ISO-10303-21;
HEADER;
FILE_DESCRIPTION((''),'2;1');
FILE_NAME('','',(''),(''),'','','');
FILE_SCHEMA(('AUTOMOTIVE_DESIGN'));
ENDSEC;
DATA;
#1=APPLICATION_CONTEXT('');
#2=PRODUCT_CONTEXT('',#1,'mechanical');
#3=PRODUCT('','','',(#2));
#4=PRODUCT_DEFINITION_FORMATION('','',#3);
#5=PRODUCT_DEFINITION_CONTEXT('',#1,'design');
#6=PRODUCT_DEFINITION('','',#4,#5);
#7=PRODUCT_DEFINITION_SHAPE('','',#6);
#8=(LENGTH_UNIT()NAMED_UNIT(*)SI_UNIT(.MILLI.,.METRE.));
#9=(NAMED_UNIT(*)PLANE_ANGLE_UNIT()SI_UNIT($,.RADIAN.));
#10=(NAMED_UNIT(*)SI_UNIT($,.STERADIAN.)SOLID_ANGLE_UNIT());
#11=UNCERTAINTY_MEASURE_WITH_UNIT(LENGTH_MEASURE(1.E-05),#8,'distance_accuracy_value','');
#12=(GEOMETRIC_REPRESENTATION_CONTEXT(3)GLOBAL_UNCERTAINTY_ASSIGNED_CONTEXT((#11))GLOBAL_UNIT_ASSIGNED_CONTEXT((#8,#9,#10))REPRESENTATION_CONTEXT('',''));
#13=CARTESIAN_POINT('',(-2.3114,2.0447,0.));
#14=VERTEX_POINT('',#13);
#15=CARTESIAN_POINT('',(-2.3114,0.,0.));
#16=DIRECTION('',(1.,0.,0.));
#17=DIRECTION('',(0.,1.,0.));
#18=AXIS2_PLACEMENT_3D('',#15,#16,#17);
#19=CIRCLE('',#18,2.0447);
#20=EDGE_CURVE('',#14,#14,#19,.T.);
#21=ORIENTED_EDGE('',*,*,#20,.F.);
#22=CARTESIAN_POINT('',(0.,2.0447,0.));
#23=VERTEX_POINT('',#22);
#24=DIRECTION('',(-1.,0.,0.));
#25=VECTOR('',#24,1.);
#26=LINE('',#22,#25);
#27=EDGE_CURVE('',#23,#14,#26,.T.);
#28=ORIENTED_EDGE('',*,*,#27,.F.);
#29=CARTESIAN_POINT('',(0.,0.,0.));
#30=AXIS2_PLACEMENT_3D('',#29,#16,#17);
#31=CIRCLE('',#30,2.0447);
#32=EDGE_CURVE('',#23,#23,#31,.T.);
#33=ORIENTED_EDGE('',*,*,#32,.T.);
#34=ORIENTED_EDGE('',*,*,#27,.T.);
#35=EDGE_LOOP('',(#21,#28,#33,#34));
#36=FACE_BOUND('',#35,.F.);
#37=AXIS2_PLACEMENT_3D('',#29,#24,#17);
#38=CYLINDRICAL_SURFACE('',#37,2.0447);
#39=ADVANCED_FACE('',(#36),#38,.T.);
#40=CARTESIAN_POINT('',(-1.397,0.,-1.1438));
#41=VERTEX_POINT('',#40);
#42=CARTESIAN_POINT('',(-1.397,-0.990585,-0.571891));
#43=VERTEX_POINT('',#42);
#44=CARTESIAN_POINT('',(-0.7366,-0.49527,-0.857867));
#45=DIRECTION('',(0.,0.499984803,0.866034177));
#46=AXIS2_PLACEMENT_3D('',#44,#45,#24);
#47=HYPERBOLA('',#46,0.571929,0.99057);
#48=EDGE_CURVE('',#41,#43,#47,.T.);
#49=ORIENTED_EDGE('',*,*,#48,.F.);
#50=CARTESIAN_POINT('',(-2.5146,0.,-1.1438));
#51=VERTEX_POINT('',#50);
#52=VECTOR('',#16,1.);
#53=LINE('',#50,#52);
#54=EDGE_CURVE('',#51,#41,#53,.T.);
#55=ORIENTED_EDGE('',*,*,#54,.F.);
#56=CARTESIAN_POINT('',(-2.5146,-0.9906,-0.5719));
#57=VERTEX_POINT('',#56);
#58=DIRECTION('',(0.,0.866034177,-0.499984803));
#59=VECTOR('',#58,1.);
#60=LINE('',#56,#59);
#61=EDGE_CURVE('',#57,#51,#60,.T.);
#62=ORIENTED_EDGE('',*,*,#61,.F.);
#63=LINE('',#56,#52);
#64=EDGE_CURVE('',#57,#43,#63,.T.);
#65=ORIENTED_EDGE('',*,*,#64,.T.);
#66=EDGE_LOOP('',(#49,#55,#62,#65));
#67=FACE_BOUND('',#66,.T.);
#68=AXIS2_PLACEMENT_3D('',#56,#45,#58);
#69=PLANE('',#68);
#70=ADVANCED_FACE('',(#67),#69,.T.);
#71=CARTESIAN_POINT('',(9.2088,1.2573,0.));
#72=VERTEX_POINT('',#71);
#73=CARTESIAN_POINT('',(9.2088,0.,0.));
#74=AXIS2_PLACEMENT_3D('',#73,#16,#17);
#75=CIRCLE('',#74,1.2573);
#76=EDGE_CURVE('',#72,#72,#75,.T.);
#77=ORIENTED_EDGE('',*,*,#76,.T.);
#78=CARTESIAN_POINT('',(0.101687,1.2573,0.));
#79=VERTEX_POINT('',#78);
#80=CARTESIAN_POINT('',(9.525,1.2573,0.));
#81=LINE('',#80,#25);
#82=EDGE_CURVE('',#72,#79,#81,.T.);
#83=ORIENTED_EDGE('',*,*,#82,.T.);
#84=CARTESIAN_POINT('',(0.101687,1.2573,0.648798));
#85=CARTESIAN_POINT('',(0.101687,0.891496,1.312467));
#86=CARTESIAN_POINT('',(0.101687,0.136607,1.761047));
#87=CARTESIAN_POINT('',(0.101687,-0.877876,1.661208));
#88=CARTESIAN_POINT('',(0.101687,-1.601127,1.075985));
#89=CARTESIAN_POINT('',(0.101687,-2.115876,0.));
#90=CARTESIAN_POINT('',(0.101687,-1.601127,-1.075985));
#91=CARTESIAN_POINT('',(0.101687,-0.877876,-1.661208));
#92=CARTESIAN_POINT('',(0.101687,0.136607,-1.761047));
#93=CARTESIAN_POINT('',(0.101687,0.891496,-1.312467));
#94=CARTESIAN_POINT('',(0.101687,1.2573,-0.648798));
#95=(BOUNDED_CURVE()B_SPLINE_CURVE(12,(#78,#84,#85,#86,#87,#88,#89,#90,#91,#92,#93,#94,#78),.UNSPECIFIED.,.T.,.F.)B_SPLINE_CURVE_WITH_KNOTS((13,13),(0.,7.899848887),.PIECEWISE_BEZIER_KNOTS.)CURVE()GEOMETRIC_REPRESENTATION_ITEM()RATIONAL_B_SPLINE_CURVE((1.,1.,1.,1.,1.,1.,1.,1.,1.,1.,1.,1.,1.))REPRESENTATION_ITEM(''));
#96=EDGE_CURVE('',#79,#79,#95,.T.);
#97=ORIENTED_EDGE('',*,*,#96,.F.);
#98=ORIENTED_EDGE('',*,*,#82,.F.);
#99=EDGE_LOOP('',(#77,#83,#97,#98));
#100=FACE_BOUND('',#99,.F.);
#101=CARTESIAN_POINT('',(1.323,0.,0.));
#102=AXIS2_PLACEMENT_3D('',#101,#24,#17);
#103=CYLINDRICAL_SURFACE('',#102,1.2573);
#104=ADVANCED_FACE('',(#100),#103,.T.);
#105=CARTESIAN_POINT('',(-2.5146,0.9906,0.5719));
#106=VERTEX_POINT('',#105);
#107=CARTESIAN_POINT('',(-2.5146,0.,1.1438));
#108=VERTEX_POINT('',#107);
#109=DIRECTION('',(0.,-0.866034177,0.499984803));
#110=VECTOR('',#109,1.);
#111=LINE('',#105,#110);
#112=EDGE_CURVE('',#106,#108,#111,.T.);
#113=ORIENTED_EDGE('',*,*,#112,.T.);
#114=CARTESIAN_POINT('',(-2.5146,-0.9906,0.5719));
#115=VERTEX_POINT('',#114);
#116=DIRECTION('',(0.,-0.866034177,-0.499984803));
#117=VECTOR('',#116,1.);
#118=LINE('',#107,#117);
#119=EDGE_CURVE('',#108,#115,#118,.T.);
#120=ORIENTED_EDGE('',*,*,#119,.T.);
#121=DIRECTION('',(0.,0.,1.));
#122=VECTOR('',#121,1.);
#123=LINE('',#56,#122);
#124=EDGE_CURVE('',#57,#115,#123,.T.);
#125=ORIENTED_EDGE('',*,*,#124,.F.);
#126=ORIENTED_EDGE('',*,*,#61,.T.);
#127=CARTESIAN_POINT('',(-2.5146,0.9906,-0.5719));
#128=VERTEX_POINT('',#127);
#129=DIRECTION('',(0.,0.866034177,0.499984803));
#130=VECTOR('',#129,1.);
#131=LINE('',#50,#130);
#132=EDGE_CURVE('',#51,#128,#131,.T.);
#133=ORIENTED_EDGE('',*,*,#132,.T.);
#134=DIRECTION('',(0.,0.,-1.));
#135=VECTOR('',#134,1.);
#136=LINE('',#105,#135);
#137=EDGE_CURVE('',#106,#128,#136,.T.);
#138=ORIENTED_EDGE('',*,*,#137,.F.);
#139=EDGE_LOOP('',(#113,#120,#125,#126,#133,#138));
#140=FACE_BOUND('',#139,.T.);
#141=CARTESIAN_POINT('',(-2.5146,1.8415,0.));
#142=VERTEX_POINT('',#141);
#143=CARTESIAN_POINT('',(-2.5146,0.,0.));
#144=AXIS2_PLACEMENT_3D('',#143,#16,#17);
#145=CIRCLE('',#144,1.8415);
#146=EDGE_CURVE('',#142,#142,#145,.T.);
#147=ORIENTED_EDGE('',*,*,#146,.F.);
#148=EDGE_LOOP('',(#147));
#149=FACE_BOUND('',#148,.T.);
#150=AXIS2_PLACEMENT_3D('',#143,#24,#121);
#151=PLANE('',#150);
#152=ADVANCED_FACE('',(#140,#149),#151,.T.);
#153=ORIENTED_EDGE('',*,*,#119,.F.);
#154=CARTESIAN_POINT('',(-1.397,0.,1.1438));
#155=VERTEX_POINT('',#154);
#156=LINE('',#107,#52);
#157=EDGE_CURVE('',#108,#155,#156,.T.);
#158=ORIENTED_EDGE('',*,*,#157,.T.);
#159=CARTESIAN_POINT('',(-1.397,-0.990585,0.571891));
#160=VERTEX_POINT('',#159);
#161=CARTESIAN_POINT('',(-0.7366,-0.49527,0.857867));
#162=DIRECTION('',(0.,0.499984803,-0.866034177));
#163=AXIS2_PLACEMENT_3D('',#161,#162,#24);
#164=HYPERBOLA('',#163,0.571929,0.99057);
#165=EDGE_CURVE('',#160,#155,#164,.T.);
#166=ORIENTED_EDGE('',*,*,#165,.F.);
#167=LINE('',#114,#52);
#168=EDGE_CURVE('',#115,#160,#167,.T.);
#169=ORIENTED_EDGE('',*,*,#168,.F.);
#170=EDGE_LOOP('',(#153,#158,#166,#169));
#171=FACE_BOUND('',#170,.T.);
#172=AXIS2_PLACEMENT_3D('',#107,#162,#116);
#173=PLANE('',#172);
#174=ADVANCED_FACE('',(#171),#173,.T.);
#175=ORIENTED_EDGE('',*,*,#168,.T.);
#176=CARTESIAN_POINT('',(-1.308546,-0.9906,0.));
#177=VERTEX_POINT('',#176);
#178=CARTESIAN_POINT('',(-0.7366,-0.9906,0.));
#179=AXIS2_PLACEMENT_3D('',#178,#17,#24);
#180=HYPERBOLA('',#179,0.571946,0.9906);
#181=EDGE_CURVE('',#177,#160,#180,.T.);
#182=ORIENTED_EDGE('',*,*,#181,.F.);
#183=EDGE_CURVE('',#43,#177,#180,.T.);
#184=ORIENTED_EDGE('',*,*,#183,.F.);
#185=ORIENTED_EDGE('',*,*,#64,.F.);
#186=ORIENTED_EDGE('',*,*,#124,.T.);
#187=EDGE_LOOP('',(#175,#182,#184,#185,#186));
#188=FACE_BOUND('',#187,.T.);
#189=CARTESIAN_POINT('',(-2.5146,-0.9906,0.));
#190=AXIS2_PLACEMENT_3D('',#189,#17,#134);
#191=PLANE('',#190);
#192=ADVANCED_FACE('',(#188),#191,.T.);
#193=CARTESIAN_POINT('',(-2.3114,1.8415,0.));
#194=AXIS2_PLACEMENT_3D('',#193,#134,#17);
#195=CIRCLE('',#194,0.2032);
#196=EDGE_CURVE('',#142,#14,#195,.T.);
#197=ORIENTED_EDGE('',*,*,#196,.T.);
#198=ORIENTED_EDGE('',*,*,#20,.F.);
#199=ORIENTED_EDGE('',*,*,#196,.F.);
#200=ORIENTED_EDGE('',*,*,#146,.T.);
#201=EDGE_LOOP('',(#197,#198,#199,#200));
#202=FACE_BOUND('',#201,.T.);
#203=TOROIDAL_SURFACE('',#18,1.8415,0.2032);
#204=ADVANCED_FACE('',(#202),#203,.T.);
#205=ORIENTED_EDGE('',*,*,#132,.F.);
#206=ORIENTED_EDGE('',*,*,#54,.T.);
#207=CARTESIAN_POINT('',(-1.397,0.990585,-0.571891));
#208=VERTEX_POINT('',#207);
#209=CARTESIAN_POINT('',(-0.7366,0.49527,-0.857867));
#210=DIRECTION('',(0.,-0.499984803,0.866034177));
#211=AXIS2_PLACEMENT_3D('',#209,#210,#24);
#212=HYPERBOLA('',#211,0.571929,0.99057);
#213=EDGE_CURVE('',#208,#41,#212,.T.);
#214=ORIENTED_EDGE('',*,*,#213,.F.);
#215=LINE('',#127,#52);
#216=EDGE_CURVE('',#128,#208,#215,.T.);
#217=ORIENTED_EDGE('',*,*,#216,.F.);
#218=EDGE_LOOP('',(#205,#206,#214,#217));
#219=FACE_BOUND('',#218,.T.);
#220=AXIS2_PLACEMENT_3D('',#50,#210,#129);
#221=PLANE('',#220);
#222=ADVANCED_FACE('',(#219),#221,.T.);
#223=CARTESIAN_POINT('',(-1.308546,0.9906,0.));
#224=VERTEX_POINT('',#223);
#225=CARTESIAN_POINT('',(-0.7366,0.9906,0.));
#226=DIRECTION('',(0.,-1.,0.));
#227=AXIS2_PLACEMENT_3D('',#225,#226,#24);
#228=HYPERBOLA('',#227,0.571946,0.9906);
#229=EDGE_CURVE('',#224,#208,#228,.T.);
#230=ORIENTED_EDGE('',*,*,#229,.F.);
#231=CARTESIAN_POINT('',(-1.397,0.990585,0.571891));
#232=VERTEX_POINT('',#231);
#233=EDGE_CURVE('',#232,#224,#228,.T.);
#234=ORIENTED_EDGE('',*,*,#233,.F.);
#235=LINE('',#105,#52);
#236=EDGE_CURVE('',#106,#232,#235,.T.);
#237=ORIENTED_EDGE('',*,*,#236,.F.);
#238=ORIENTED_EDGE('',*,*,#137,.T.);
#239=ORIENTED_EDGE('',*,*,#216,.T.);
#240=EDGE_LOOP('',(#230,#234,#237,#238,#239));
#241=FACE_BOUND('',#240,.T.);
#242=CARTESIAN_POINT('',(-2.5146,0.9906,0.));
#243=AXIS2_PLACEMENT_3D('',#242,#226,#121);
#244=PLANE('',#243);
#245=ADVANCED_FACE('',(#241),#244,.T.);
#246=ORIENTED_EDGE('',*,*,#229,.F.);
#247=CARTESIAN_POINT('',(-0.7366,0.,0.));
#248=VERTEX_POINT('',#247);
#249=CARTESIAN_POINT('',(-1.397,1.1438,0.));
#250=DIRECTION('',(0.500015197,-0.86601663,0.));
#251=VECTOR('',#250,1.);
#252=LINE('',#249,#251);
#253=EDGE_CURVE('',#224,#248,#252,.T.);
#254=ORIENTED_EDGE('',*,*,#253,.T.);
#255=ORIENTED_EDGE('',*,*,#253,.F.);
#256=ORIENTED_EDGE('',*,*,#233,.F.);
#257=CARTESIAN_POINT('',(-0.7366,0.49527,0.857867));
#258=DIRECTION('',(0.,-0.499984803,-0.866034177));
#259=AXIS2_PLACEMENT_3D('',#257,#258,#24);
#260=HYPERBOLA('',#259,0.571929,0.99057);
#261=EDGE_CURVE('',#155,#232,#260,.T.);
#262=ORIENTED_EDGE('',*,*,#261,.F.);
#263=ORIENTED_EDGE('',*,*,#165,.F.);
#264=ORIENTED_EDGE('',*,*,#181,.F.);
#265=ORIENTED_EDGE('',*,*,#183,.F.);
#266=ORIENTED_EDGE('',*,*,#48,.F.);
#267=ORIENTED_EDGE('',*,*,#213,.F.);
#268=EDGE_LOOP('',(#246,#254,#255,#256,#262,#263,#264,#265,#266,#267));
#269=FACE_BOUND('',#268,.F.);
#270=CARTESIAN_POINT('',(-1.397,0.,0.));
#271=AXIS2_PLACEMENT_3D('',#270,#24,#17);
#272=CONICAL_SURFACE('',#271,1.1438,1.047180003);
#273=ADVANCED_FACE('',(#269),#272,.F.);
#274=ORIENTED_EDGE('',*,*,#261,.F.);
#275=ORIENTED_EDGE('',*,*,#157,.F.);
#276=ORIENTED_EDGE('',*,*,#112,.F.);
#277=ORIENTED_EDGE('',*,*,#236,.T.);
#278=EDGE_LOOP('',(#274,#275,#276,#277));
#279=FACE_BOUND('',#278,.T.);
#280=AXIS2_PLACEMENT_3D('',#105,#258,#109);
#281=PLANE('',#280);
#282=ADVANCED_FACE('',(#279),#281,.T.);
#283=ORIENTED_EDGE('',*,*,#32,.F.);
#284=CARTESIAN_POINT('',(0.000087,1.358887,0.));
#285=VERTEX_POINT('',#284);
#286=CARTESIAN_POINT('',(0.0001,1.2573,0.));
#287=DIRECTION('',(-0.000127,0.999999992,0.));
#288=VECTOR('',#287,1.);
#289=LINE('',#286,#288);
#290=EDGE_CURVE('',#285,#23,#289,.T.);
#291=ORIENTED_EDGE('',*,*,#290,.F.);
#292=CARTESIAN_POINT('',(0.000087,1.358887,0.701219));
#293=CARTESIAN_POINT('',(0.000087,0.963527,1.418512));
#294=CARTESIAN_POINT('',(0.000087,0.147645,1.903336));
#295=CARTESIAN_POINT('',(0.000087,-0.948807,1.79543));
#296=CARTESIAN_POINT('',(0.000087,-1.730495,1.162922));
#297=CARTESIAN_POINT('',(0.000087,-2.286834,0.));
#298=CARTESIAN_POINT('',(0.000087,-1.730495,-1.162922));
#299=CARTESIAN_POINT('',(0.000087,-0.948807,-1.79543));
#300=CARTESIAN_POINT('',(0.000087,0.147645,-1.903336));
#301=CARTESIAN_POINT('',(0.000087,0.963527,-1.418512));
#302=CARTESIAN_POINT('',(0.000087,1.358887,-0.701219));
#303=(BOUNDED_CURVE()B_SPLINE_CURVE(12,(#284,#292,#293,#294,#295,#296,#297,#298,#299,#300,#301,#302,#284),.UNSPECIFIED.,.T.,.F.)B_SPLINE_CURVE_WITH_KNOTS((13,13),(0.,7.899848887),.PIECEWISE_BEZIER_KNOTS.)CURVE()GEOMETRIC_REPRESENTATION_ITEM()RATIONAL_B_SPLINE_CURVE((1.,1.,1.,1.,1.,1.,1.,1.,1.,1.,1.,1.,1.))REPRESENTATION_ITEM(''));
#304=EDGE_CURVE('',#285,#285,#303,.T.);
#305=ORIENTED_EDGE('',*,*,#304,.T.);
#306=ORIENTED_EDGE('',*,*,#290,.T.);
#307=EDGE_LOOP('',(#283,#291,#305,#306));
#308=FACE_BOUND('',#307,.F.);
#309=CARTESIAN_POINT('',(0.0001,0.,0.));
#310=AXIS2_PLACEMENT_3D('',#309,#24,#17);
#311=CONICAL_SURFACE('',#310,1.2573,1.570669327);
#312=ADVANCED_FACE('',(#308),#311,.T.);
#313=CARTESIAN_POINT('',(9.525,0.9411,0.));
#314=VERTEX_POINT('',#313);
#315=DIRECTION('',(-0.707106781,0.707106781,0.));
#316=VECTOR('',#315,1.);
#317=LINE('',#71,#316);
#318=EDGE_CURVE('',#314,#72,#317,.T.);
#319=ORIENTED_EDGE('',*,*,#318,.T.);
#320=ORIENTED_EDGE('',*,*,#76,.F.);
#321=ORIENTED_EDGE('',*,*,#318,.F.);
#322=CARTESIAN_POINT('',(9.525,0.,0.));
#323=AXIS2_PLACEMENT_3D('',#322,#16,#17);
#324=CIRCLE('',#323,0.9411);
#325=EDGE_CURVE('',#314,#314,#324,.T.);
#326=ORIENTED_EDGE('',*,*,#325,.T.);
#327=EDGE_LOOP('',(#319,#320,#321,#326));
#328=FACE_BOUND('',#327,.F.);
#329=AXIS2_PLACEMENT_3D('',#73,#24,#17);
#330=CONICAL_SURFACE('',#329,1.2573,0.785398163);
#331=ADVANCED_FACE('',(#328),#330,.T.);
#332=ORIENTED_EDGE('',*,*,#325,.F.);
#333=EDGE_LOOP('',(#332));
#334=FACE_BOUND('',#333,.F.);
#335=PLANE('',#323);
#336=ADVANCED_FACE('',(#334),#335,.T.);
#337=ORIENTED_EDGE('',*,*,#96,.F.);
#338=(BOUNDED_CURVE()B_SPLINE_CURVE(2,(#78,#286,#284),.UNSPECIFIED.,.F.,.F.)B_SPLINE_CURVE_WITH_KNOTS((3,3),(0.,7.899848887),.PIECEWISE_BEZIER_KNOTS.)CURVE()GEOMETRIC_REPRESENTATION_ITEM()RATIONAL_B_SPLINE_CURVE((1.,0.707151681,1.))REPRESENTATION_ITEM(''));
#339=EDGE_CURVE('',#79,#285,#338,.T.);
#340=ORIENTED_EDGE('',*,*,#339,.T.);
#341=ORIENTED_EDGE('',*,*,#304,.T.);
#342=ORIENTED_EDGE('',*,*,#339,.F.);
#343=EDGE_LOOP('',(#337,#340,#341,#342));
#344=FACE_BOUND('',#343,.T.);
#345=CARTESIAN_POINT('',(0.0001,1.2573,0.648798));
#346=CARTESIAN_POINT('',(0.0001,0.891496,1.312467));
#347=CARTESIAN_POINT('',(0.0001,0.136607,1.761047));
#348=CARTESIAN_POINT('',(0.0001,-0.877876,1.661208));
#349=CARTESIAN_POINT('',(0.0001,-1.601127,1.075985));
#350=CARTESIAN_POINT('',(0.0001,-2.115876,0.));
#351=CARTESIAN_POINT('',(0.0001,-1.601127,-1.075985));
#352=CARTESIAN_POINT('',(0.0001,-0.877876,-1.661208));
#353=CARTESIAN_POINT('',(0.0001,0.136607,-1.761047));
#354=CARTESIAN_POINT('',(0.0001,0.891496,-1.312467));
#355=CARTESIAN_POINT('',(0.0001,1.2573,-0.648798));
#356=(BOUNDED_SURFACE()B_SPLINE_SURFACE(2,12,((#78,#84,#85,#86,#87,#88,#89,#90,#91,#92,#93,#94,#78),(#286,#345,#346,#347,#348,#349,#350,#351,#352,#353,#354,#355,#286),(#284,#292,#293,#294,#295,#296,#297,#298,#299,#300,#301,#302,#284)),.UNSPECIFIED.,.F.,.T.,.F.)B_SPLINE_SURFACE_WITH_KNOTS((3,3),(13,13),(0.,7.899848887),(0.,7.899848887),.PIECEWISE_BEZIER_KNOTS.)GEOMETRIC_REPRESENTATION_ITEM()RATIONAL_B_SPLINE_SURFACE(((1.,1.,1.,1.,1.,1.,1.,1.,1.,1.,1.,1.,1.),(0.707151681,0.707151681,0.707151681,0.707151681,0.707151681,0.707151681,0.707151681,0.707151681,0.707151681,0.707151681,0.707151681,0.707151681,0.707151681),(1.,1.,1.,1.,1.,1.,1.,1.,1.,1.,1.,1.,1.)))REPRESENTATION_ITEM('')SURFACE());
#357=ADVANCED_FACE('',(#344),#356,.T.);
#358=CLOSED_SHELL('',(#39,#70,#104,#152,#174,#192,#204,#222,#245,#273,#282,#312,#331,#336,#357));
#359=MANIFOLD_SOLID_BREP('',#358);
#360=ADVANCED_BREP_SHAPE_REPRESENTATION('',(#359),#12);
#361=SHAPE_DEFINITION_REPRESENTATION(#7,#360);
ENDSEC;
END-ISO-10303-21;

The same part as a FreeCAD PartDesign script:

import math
import FreeCAD as App
import Part
import Sketcher

V = App.Vector
Q = App.Units.Quantity


def edges_at(feature, points):
    """Names of the edges that pass closest to the given points."""
    edges = feature.Shape.Edges
    near = lambda p: min(range(len(edges)), key=lambda i: edges[i].distToShape(Part.Vertex(*p))[0])
    return sorted({f"Edge{near(p) + 1}" for p in points})


def add_polygon(sketch, points):
    """Adds a closed chain of lines whose ends are joined by coincident constraints."""
    first, n = sketch.GeometryCount, len(points)
    for a, b in zip(points, points[1:] + points[:1]):
        sketch.addGeometry(Part.LineSegment(App.Vector(*a, 0), App.Vector(*b, 0)), False)
    for i in range(n):
        sketch.addConstraint(Sketcher.Constraint("Coincident", first + i, 2, first + (i + 1) % n, 1))

doc = App.newDocument("Part")
body = doc.addObject("PartDesign::Body", "Body")

# Sketch on XY plane
sketch1 = body.newObject("Sketcher::SketchObject", "Sketch")
sketch1.AttachmentSupport = (doc.getObject("XY_Plane"), [""])
sketch1.MapMode = "FlatFace"
add_polygon(sketch1, [(-1.4, 1.1), (-0.7, 0), (9.5, 0), (9.5, 1.3), (0, 1.3), (0, 2), (-2.5, 2), (-2.5, 1.1)])  # lines 0-7
sketch1.addConstraint(Sketcher.Constraint("Horizontal", 1))
sketch1.addConstraint(Sketcher.Constraint("Vertical", 2))
sketch1.addConstraint(Sketcher.Constraint("Horizontal", 3))
sketch1.addConstraint(Sketcher.Constraint("Vertical", 4))
sketch1.addConstraint(Sketcher.Constraint("Horizontal", 5))
sketch1.addConstraint(Sketcher.Constraint("Vertical", 6))
sketch1.addConstraint(Sketcher.Constraint("Horizontal", 7))
sketch1.addConstraint(Sketcher.Constraint("PointOnObject", 0, 2, -1))
sketch1.addConstraint(Sketcher.Constraint("PointOnObject", 3, 2, -2))
sketch1.addConstraint(Sketcher.Constraint("DistanceX", 3, 2, 3, 1, Q("0.375 in")))
sketch1.addConstraint(Sketcher.Constraint("DistanceX", 5, 2, 5, 1, Q("0.099 in")))
sketch1.addConstraint(Sketcher.Constraint("DistanceX", 7, 1, 7, 2, Q("0.044 in")))
sketch1.addConstraint(Sketcher.Constraint("Angle", 0, Q("-59.999 deg")))
sketch1.addConstraint(Sketcher.Constraint("DistanceX", 1, 1, 1, 2, Q("0.404 in")))
sketch1.addConstraint(Sketcher.Constraint("DistanceY", 4, 1, 4, 2, Q("0.031 in")))
sketch1.addConstraint(Sketcher.Constraint("DistanceY", 2, 1, 2, 2, Q("0.0495 in")))
revolution = body.newObject("PartDesign::Revolution", "Revolution")
revolution.Profile = sketch1
revolution.ReferenceAxis = (sketch1, ["H_Axis"])
revolution.Angle = 360

# Sketch on YZ plane
sketch2 = body.newObject("Sketcher::SketchObject", "Sketch001")
sketch2.AttachmentSupport = (doc.getObject("YZ_Plane"), [""])
sketch2.MapMode = "FlatFace"
sketch2.AttachmentOffset = App.Placement(V(0, 0, -0.099 * 25.4), App.Rotation())
sketch2.addGeometry(Part.LineSegment(V(1, 0.6, 0), V(0, 1.1, 0)), False)
sketch2.addGeometry(Part.ArcOfCircle(Part.Circle(V(0, 0, 0), V(0, 0, 1), 1.1), math.radians(30), math.radians(90)), False)
sketch2.addGeometry(Part.ArcOfCircle(Part.Circle(V(0, 0, 0), V(0, 0, 1), 1.1), math.radians(90), math.radians(150)), False)
sketch2.addGeometry(Part.LineSegment(V(0, 1.1, 0), V(-1, 0.6, 0)), False)
sketch2.addGeometry(Part.ArcOfCircle(Part.Circle(V(0, 0, 0), V(0, 0, 1), 1.1), math.radians(-30), math.radians(30)), False)
sketch2.addGeometry(Part.LineSegment(V(1, 0.6, 0), V(1, -0.6, 0)), False)
sketch2.addGeometry(Part.LineSegment(V(-1, 0.6, 0), V(-1, -0.6, 0)), False)
sketch2.addGeometry(Part.ArcOfCircle(Part.Circle(V(0, 0, 0), V(0, 0, 1), 1.1), math.radians(150), math.radians(210)), False)
sketch2.addGeometry(Part.LineSegment(V(-1, -0.6, 0), V(0, -1.1, 0)), False)
sketch2.addGeometry(Part.ArcOfCircle(Part.Circle(V(0, 0, 0), V(0, 0, 1), 1.1), math.radians(-150), math.radians(-90)), False)
sketch2.addGeometry(Part.ArcOfCircle(Part.Circle(V(0, 0, 0), V(0, 0, 1), 1.1), math.radians(-90), math.radians(-30)), False)
sketch2.addGeometry(Part.LineSegment(V(0, -1.1, 0), V(1, -0.6, 0)), False)
sketch2.addConstraint(Sketcher.Constraint("Coincident", 0, 1, 1, 1))
sketch2.addConstraint(Sketcher.Constraint("Coincident", 1, 2, 0, 2))
sketch2.addConstraint(Sketcher.Constraint("Coincident", 2, 1, 3, 1))
sketch2.addConstraint(Sketcher.Constraint("Coincident", 3, 2, 2, 2))
sketch2.addConstraint(Sketcher.Constraint("Coincident", 4, 1, 5, 2))
sketch2.addConstraint(Sketcher.Constraint("Coincident", 5, 1, 4, 2))
sketch2.addConstraint(Sketcher.Constraint("Coincident", 6, 1, 7, 1))
sketch2.addConstraint(Sketcher.Constraint("Coincident", 7, 2, 6, 2))
sketch2.addConstraint(Sketcher.Constraint("Coincident", 8, 1, 9, 1))
sketch2.addConstraint(Sketcher.Constraint("Coincident", 9, 2, 8, 2))
sketch2.addConstraint(Sketcher.Constraint("Coincident", 10, 1, 11, 1))
sketch2.addConstraint(Sketcher.Constraint("Coincident", 11, 2, 10, 2))
sketch2.addConstraint(Sketcher.Constraint("Vertical", 5))
sketch2.addConstraint(Sketcher.Constraint("Vertical", 6))
sketch2.addConstraint(Sketcher.Constraint("Coincident", 1, 3, -1, 1))
sketch2.addConstraint(Sketcher.Constraint("Coincident", 2, 3, -1, 1))
sketch2.addConstraint(Sketcher.Constraint("Coincident", 4, 3, -1, 1))
sketch2.addConstraint(Sketcher.Constraint("Coincident", 7, 3, -1, 1))
sketch2.addConstraint(Sketcher.Constraint("Coincident", 9, 3, -1, 1))
sketch2.addConstraint(Sketcher.Constraint("Coincident", 10, 3, -1, 1))
sketch2.addConstraint(Sketcher.Constraint("Coincident", 2, 1, 1, 2))
sketch2.addConstraint(Sketcher.Constraint("Coincident", 5, 1, 0, 1))
sketch2.addConstraint(Sketcher.Constraint("Coincident", 6, 1, 3, 2))
sketch2.addConstraint(Sketcher.Constraint("Coincident", 8, 1, 7, 2))
sketch2.addConstraint(Sketcher.Constraint("Coincident", 10, 1, 9, 2))
sketch2.addConstraint(Sketcher.Constraint("PointOnObject", 1, 2, -2))
sketch2.addConstraint(Sketcher.Constraint("PointOnObject", 9, 2, -2))
sketch2.addConstraint(Sketcher.Constraint("Parallel", 0, 8))
sketch2.addConstraint(Sketcher.Constraint("Parallel", 3, 11))
sketch2.addConstraint(Sketcher.Constraint("Angle", 0, Q("150.001 deg")))
sketch2.addConstraint(Sketcher.Constraint("Radius", 1, Q("1.1438 mm")))
pad1 = body.newObject("PartDesign::Pad", "Pad")
pad1.Profile = sketch2
pad1.Type = "UpToFirst"
doc.recompute()

fillet = body.newObject("PartDesign::Fillet", "Fillet")
fillet.Base = (pad1, edges_at(pad1, [(-2.515, -2.045, 0)]))
fillet.Radius = Q("0.008 in")
doc.recompute()

chamfer = body.newObject("PartDesign::Chamfer", "Chamfer")
chamfer.Base = (fillet, edges_at(fillet, [(9.525, -1.257, 0)]))
chamfer.ChamferType = "Two distances"
chamfer.Size = 0.3162
chamfer.Size2 = 0.3162
doc.recompute()

fillet2 = body.newObject("PartDesign::Fillet", "Fillet001")
fillet2.Base = (chamfer, edges_at(chamfer, [(0, -1.257, 0)]))
fillet2.Radius = Q("0.004 in")

doc.recompute()
